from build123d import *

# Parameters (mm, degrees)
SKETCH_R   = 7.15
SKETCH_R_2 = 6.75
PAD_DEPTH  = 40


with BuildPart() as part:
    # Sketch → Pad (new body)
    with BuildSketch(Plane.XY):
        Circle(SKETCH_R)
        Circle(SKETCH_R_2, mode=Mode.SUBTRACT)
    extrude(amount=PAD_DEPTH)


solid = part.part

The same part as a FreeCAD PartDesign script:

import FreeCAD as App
import Part
import Sketcher

doc = App.newDocument("Part")
body = doc.addObject("PartDesign::Body", "Body")

# Sketch on XY plane
sketch1 = doc.addObject("Sketcher::SketchObject", "Sketch")
body.addObject(sketch1)
sketch1.AttachmentSupport = (doc.XY_Plane, [""])
sketch1.MapMode = "FlatFace"
sketch1.addGeometry([
    Part.Circle(App.Vector(0, 0, 0), App.Vector(0, 0, 1), 7.15),
    Part.Circle(App.Vector(0, 0, 0), App.Vector(0, 0, 1), 6.75),
], False)
sketch1.addConstraint([
    Sketcher.Constraint("Coincident", 0, 3, -1, 1),
    Sketcher.Constraint("Coincident", 1, 3, -1, 1),
    Sketcher.Constraint("Diameter", 0, 14.3),
    Sketcher.Constraint("Diameter", 1, 13.5),
])
pad1 = doc.addObject("PartDesign::Pad", "Pad")
body.addObject(pad1)
pad1.Profile = sketch1
pad1.Length = 40

doc.recompute()
